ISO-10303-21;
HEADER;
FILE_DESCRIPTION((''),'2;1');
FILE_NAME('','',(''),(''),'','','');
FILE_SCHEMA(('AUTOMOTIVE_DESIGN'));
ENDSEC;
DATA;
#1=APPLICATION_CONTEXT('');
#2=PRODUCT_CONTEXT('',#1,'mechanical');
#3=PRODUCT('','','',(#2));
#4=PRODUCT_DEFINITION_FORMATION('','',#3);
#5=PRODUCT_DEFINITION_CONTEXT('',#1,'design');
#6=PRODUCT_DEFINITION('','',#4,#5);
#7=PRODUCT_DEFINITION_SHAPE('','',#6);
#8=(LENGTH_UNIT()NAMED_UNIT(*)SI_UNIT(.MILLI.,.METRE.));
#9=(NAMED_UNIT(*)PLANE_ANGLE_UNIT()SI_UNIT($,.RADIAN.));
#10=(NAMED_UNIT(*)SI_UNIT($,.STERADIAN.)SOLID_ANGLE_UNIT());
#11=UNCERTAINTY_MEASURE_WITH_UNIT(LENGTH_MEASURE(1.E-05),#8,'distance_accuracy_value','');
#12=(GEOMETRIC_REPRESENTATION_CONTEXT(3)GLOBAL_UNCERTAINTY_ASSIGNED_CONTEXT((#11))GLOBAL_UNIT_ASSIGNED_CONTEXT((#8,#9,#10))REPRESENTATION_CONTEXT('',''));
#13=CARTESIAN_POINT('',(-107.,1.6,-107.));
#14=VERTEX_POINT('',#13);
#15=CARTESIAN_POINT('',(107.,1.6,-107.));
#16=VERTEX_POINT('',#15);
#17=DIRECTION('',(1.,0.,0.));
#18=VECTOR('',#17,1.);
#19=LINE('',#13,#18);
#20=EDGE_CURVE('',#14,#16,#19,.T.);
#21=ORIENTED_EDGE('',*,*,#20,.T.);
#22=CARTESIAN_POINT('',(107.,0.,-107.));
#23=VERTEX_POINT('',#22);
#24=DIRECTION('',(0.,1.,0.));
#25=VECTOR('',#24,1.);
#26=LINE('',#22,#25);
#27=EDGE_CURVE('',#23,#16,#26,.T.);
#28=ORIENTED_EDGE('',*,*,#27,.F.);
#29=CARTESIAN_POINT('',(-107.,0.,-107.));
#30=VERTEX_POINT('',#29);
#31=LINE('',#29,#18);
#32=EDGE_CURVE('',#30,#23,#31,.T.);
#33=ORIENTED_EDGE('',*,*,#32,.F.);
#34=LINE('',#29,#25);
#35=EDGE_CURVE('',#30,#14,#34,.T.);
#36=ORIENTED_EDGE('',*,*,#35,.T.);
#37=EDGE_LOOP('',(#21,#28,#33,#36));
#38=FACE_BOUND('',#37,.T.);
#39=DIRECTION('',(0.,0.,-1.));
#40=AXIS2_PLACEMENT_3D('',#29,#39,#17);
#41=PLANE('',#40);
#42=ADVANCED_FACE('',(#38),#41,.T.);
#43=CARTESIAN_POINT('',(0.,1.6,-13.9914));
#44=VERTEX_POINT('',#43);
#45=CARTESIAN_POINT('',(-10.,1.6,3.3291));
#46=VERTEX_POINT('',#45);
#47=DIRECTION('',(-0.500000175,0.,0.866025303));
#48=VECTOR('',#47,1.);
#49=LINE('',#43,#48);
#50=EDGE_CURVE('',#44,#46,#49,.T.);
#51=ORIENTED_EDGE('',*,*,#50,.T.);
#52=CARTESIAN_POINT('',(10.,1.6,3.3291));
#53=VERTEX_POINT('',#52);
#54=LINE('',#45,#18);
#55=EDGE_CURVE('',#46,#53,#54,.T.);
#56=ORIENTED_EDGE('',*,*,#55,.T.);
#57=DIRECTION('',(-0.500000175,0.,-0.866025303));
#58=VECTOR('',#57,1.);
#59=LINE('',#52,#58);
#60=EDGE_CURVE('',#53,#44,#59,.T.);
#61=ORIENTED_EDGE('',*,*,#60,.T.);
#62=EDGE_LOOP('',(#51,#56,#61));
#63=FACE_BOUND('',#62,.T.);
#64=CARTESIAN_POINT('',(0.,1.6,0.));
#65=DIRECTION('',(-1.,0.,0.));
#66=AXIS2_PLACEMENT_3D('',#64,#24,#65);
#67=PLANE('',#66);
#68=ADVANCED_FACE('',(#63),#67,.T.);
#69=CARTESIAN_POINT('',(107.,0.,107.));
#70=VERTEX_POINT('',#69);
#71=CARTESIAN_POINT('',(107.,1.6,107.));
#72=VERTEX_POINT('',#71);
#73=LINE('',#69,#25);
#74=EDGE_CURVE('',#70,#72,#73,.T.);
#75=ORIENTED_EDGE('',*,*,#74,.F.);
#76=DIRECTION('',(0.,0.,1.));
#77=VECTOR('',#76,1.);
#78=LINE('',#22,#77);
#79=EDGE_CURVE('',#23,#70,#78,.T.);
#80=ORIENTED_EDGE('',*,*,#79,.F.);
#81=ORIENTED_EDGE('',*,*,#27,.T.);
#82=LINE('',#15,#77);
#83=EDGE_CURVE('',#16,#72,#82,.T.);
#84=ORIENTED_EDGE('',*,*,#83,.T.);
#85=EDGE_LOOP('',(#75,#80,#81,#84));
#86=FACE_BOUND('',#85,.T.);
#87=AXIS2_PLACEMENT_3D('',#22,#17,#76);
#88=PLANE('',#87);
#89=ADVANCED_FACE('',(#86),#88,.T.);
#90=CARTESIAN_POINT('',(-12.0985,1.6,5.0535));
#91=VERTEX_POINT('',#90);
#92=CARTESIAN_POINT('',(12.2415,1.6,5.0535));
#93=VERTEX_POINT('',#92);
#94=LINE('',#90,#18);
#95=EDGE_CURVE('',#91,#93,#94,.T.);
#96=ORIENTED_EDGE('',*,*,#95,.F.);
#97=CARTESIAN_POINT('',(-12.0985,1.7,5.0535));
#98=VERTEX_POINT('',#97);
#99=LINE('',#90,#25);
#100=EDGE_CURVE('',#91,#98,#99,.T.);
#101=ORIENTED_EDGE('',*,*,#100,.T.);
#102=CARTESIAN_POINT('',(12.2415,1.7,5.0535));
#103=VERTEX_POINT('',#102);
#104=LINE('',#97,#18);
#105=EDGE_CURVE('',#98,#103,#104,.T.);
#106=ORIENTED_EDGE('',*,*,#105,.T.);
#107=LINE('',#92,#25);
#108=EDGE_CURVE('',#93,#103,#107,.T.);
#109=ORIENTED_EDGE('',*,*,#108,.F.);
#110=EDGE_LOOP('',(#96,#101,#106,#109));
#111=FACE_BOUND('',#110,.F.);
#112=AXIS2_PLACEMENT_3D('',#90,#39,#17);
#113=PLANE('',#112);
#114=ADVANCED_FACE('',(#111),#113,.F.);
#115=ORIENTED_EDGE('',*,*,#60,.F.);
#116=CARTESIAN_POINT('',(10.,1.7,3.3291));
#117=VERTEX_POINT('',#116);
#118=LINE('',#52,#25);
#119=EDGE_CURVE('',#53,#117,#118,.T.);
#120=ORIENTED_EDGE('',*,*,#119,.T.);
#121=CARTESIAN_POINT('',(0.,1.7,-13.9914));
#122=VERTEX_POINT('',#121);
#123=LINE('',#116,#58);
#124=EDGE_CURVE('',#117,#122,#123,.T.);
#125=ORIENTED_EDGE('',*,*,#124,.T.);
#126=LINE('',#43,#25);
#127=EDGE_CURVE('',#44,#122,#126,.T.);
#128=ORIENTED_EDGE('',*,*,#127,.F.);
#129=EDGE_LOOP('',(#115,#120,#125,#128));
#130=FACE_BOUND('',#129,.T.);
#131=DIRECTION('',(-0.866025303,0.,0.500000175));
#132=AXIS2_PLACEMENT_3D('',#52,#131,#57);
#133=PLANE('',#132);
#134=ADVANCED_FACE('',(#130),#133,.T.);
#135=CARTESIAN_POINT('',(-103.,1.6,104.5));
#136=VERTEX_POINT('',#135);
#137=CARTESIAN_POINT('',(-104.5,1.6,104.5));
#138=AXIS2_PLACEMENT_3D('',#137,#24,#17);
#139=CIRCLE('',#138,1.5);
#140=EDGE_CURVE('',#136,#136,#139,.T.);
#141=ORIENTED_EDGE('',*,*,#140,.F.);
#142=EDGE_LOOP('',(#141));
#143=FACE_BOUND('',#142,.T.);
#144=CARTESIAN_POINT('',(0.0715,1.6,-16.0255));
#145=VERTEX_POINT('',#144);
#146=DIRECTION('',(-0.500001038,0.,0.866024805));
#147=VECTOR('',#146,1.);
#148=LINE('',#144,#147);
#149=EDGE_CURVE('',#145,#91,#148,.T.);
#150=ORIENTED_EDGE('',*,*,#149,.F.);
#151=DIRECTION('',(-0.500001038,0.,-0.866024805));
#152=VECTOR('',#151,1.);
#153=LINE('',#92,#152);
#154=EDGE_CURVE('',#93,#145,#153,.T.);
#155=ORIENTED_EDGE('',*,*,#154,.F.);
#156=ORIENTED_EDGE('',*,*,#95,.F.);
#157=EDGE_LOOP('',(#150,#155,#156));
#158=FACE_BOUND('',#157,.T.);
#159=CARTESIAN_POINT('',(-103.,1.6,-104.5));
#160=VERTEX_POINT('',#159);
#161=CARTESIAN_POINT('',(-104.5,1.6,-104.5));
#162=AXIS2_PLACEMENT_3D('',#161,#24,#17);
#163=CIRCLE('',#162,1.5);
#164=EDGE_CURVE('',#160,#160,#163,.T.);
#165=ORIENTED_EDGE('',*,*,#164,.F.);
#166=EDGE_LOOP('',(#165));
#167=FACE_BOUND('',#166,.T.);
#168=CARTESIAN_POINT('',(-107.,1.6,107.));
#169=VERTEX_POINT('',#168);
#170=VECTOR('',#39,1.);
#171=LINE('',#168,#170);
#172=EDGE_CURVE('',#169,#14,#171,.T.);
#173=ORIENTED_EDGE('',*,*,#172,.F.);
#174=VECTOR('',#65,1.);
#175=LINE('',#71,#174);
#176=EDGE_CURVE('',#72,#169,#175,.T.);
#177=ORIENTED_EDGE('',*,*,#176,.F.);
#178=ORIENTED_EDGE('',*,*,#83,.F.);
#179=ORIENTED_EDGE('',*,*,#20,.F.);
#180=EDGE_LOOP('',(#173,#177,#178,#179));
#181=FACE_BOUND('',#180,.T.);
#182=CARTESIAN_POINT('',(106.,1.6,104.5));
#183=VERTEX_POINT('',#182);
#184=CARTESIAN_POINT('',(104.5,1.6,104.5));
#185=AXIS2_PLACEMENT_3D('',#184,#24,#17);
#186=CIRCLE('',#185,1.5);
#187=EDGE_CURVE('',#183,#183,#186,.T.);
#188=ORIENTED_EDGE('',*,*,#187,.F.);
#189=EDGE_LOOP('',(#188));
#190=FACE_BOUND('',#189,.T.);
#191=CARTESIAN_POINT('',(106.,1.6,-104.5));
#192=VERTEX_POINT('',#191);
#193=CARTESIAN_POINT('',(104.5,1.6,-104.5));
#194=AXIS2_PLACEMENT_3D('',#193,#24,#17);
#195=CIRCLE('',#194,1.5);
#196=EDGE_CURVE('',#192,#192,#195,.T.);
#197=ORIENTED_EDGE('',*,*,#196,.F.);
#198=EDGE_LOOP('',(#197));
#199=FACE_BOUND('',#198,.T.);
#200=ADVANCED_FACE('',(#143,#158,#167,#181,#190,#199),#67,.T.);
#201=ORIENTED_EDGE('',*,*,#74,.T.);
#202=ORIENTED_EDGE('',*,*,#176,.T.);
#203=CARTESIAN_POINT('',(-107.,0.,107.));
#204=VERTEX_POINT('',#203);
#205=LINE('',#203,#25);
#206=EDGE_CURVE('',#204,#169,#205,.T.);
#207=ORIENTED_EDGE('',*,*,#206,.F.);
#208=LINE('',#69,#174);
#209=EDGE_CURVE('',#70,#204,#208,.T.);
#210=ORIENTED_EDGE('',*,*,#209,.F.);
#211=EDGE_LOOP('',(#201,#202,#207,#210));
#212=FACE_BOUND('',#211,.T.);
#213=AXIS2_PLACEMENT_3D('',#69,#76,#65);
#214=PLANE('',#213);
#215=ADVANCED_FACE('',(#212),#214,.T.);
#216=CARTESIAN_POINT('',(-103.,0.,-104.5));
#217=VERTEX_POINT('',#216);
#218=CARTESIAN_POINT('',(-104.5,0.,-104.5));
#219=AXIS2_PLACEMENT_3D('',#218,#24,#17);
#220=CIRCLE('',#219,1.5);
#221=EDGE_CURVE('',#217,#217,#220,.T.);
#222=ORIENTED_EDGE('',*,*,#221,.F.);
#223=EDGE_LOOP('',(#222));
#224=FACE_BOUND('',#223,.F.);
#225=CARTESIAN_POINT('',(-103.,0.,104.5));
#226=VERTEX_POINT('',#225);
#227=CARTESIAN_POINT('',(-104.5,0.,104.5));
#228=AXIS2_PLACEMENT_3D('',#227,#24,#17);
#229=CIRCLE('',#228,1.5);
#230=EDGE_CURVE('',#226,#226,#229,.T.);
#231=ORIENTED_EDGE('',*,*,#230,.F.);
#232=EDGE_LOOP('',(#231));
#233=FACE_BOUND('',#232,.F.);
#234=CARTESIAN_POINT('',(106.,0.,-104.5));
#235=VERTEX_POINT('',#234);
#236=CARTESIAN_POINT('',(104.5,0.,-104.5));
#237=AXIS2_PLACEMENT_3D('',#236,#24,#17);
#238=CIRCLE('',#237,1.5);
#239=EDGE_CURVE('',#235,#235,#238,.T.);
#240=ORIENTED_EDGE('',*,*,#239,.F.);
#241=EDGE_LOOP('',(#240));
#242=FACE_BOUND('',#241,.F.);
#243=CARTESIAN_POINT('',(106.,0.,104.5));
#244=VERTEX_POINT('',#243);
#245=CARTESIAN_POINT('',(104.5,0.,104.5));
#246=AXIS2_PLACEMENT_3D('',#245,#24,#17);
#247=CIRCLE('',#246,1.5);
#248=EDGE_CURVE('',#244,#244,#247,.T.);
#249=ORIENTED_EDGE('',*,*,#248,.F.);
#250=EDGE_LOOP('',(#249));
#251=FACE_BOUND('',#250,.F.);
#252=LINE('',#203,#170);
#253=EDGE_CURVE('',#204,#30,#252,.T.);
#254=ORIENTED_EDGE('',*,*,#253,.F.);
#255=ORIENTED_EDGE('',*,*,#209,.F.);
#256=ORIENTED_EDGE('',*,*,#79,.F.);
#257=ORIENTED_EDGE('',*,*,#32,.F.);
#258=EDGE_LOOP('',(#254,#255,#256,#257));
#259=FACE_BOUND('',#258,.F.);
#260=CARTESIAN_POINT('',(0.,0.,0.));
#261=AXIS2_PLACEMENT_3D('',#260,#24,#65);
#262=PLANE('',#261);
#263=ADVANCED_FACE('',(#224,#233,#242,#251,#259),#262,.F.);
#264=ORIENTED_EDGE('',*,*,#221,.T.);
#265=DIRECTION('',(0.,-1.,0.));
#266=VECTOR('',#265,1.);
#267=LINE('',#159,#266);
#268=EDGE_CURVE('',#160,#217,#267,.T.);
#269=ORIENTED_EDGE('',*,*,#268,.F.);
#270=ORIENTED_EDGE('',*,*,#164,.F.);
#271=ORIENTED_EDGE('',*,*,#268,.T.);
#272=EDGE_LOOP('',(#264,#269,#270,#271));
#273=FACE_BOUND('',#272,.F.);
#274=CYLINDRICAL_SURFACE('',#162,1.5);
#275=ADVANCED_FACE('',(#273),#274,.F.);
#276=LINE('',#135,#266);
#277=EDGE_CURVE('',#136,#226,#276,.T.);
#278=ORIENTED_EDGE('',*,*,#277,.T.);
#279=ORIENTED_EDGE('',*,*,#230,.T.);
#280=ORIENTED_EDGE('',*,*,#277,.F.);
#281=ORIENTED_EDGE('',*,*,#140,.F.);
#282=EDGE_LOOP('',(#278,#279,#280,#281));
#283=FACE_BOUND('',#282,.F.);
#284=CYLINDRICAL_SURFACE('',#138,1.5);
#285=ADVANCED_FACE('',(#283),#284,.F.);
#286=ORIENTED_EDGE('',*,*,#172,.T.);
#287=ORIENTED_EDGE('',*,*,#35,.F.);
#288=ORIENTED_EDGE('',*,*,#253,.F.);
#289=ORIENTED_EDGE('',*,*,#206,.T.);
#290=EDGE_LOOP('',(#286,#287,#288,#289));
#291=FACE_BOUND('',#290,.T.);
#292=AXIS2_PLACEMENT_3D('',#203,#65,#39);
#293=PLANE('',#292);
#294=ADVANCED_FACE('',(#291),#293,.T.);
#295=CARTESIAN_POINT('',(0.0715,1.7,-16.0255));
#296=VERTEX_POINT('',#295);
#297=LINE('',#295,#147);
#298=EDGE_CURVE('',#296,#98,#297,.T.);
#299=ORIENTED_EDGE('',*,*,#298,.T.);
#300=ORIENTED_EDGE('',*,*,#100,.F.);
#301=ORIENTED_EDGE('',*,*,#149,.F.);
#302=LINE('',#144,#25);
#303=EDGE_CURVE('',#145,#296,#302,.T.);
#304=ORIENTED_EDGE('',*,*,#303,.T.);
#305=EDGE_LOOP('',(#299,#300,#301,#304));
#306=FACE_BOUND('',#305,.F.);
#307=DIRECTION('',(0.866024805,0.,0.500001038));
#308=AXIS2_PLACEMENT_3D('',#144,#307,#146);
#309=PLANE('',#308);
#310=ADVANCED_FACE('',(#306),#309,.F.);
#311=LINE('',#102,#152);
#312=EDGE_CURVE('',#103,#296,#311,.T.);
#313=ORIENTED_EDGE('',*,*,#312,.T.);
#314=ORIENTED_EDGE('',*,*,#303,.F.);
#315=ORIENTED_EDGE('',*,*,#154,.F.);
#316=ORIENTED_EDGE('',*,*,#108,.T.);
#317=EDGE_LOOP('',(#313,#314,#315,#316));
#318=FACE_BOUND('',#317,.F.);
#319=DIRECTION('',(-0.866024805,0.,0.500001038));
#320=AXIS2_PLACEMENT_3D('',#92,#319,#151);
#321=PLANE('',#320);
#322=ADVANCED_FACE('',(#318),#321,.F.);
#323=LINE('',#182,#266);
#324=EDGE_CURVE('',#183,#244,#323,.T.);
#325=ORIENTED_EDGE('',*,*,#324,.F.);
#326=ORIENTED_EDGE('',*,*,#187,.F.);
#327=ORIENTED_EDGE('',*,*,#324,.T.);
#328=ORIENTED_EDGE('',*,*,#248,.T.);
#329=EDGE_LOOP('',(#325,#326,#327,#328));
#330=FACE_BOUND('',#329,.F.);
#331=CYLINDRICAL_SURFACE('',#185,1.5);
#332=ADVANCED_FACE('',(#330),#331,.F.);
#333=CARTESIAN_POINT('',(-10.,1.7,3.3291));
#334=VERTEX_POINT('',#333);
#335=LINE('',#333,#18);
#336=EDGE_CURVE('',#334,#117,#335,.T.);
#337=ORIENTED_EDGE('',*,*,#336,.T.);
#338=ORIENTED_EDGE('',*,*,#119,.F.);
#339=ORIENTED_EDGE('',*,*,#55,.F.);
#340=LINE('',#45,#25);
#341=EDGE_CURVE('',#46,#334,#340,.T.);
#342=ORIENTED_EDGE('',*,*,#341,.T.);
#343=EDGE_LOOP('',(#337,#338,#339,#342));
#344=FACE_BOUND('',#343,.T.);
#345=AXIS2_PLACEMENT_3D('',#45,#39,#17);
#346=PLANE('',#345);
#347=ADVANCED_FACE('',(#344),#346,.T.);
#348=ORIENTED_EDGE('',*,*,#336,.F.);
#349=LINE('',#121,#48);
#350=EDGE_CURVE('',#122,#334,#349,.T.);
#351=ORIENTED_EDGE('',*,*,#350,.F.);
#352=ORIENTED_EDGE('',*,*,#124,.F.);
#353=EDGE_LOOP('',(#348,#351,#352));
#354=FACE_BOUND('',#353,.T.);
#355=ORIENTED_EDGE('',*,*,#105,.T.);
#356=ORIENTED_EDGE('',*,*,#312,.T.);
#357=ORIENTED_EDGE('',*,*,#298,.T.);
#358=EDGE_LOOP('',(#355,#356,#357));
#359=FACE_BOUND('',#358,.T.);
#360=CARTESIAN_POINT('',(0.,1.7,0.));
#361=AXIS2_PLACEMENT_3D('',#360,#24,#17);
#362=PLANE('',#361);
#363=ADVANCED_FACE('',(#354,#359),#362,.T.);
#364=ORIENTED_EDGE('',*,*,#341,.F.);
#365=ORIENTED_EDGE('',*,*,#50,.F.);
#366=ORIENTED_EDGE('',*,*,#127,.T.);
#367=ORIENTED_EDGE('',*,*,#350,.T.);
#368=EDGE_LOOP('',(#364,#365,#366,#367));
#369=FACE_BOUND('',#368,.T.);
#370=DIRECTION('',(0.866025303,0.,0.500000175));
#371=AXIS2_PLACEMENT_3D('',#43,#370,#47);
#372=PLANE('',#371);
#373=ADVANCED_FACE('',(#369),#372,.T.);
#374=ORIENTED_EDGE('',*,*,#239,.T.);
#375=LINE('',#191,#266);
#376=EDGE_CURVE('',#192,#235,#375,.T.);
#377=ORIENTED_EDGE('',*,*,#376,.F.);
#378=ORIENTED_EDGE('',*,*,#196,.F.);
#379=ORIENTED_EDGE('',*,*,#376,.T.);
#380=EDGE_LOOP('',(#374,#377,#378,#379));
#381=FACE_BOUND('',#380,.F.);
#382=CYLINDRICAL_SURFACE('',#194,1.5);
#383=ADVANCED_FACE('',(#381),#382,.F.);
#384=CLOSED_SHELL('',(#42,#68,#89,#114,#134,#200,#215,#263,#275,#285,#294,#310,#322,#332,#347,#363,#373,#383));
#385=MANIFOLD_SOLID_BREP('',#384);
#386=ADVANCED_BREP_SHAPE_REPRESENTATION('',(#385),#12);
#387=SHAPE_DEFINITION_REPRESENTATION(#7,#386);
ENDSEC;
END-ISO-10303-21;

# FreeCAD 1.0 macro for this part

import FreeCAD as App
import Part
import Sketcher
Q = App.Units.Quantity


def add_polygon(sketch, points):
    """Adds a closed chain of lines whose ends are joined by coincident constraints."""
    first, n = sketch.GeometryCount, len(points)
    for a, b in zip(points, points[1:] + points[:1]):
        sketch.addGeometry(Part.LineSegment(App.Vector(*a, 0), App.Vector(*b, 0)), False)
    for i in range(n):
        sketch.addConstraint(Sketcher.Constraint("Coincident", first + i, 2, first + (i + 1) % n, 1))

doc = App.newDocument("Part")
body = doc.addObject("PartDesign::Body", "Body")

# Sketch on XZ plane
sketch1 = body.newObject("Sketcher::SketchObject", "Sketch")
sketch1.AttachmentSupport = (doc.getObject("XZ_Plane"), [""])
sketch1.MapMode = "FlatFace"
add_polygon(sketch1, [(-107, 107), (107, 107), (107, -107), (-107, -107)])  # lines 0-3
sketch1.addConstraint([
    Sketcher.Constraint("Horizontal", 0),
    Sketcher.Constraint("Vertical", 1),
    Sketcher.Constraint("Horizontal", 2),
    Sketcher.Constraint("Vertical", 3),
    Sketcher.Constraint("Symmetric", 0, 2, 2, 2, -1, 1),
    Sketcher.Constraint("Equal", 2, 1),
    Sketcher.Constraint("DistanceX", 0, 1, 0, 2, Q("214 mm")),
])
pad1 = body.newObject("PartDesign::Pad", "Pad")
pad1.Profile = sketch1
pad1.Length = 1.6
pad1.Reversed = True

# Sketch on XZ plane
sketch2 = body.newObject("Sketcher::SketchObject", "Sketch001")
sketch2.AttachmentSupport = (doc.getObject("XZ_Plane"), [""])
sketch2.MapMode = "FlatFace"
sketch2.AttachmentOffset = App.Placement(App.Vector(0, 0, -1.6), App.Rotation())
add_polygon(sketch2, [(12, 5), (0, -16), (-12, 5)])  # lines 0-2
add_polygon(sketch2, [(-10, 3), (0, -14), (10, 3)])  # lines 3-5
sketch2.addConstraint([
    Sketcher.Constraint("Horizontal", 2),
    Sketcher.Constraint("Horizontal", 5),
    Sketcher.Constraint("PointOnObject", 3, 2, -2),
    Sketcher.Constraint("Parallel", 1, 3),
    Sketcher.Constraint("Parallel", 0, 4),
    Sketcher.Constraint("Equal", 0, 1),
    Sketcher.Constraint("DistanceX", 5, 2, 5, 1, Q("20 mm")),
    Sketcher.Constraint("Distance", 3, Q("20 mm")),
    Sketcher.Constraint("DistanceX", 2, 1, 2, 2, Q("24.34 mm")),
    Sketcher.Constraint("DistanceY", -1, 1, 4, 2, Q("3.329 mm")),
    Sketcher.Constraint("DistanceY", 0, 2, 3, 2, Q("2.034 mm")),
    Sketcher.Constraint("DistanceX", -1, 1, 0, 2, Q("0.0715 mm")),
])
pad2 = body.newObject("PartDesign::Pad", "Pad001")
pad2.Profile = sketch2
pad2.Length = 0.1
pad2.Reversed = True

# Sketch on XZ plane
sketch3 = body.newObject("Sketcher::SketchObject", "Sketch002")
sketch3.AttachmentSupport = (doc.getObject("XZ_Plane"), [""])
sketch3.MapMode = "FlatFace"
sketch3.AttachmentOffset = App.Placement(App.Vector(0, 0, -1.6), App.Rotation())
sketch3.addGeometry([
    Part.Circle(App.Vector(-104.5, -104.5, 0), App.Vector(0, 0, 1), 1.5),
    Part.Circle(App.Vector(104.5, -104.5, 0), App.Vector(0, 0, 1), 1.5),
    Part.Circle(App.Vector(104.5, 104.5, 0), App.Vector(0, 0, 1), 1.5),
    Part.Circle(App.Vector(-104.5, 104.5, 0), App.Vector(0, 0, 1), 1.5),
], False)
sketch3.addConstraint([
    Sketcher.Constraint("Equal", 0, 1),
    Sketcher.Constraint("Equal", 1, 2),
    Sketcher.Constraint("Equal", 2, 3),
    Sketcher.Constraint("Symmetric", 0, 3, 2, 3, -1, 1),
    Sketcher.Constraint("Symmetric", 1, 3, 3, 3, -1, 1),
    Sketcher.Constraint("Symmetric", 0, 3, 1, 3, -2),
    Sketcher.Constraint("Diameter", 0, Q("3 mm")),
    Sketcher.Constraint("DistanceX", 0, 3, 1, 3, Q("209 mm")),
    Sketcher.Constraint("DistanceY", 1, 3, 2, 3, Q("209 mm")),
])
pocket1 = body.newObject("PartDesign::Pocket", "Pocket")
pocket1.Profile = sketch3
pocket1.Length = 10
pocket1.Reversed = True

doc.recompute()
